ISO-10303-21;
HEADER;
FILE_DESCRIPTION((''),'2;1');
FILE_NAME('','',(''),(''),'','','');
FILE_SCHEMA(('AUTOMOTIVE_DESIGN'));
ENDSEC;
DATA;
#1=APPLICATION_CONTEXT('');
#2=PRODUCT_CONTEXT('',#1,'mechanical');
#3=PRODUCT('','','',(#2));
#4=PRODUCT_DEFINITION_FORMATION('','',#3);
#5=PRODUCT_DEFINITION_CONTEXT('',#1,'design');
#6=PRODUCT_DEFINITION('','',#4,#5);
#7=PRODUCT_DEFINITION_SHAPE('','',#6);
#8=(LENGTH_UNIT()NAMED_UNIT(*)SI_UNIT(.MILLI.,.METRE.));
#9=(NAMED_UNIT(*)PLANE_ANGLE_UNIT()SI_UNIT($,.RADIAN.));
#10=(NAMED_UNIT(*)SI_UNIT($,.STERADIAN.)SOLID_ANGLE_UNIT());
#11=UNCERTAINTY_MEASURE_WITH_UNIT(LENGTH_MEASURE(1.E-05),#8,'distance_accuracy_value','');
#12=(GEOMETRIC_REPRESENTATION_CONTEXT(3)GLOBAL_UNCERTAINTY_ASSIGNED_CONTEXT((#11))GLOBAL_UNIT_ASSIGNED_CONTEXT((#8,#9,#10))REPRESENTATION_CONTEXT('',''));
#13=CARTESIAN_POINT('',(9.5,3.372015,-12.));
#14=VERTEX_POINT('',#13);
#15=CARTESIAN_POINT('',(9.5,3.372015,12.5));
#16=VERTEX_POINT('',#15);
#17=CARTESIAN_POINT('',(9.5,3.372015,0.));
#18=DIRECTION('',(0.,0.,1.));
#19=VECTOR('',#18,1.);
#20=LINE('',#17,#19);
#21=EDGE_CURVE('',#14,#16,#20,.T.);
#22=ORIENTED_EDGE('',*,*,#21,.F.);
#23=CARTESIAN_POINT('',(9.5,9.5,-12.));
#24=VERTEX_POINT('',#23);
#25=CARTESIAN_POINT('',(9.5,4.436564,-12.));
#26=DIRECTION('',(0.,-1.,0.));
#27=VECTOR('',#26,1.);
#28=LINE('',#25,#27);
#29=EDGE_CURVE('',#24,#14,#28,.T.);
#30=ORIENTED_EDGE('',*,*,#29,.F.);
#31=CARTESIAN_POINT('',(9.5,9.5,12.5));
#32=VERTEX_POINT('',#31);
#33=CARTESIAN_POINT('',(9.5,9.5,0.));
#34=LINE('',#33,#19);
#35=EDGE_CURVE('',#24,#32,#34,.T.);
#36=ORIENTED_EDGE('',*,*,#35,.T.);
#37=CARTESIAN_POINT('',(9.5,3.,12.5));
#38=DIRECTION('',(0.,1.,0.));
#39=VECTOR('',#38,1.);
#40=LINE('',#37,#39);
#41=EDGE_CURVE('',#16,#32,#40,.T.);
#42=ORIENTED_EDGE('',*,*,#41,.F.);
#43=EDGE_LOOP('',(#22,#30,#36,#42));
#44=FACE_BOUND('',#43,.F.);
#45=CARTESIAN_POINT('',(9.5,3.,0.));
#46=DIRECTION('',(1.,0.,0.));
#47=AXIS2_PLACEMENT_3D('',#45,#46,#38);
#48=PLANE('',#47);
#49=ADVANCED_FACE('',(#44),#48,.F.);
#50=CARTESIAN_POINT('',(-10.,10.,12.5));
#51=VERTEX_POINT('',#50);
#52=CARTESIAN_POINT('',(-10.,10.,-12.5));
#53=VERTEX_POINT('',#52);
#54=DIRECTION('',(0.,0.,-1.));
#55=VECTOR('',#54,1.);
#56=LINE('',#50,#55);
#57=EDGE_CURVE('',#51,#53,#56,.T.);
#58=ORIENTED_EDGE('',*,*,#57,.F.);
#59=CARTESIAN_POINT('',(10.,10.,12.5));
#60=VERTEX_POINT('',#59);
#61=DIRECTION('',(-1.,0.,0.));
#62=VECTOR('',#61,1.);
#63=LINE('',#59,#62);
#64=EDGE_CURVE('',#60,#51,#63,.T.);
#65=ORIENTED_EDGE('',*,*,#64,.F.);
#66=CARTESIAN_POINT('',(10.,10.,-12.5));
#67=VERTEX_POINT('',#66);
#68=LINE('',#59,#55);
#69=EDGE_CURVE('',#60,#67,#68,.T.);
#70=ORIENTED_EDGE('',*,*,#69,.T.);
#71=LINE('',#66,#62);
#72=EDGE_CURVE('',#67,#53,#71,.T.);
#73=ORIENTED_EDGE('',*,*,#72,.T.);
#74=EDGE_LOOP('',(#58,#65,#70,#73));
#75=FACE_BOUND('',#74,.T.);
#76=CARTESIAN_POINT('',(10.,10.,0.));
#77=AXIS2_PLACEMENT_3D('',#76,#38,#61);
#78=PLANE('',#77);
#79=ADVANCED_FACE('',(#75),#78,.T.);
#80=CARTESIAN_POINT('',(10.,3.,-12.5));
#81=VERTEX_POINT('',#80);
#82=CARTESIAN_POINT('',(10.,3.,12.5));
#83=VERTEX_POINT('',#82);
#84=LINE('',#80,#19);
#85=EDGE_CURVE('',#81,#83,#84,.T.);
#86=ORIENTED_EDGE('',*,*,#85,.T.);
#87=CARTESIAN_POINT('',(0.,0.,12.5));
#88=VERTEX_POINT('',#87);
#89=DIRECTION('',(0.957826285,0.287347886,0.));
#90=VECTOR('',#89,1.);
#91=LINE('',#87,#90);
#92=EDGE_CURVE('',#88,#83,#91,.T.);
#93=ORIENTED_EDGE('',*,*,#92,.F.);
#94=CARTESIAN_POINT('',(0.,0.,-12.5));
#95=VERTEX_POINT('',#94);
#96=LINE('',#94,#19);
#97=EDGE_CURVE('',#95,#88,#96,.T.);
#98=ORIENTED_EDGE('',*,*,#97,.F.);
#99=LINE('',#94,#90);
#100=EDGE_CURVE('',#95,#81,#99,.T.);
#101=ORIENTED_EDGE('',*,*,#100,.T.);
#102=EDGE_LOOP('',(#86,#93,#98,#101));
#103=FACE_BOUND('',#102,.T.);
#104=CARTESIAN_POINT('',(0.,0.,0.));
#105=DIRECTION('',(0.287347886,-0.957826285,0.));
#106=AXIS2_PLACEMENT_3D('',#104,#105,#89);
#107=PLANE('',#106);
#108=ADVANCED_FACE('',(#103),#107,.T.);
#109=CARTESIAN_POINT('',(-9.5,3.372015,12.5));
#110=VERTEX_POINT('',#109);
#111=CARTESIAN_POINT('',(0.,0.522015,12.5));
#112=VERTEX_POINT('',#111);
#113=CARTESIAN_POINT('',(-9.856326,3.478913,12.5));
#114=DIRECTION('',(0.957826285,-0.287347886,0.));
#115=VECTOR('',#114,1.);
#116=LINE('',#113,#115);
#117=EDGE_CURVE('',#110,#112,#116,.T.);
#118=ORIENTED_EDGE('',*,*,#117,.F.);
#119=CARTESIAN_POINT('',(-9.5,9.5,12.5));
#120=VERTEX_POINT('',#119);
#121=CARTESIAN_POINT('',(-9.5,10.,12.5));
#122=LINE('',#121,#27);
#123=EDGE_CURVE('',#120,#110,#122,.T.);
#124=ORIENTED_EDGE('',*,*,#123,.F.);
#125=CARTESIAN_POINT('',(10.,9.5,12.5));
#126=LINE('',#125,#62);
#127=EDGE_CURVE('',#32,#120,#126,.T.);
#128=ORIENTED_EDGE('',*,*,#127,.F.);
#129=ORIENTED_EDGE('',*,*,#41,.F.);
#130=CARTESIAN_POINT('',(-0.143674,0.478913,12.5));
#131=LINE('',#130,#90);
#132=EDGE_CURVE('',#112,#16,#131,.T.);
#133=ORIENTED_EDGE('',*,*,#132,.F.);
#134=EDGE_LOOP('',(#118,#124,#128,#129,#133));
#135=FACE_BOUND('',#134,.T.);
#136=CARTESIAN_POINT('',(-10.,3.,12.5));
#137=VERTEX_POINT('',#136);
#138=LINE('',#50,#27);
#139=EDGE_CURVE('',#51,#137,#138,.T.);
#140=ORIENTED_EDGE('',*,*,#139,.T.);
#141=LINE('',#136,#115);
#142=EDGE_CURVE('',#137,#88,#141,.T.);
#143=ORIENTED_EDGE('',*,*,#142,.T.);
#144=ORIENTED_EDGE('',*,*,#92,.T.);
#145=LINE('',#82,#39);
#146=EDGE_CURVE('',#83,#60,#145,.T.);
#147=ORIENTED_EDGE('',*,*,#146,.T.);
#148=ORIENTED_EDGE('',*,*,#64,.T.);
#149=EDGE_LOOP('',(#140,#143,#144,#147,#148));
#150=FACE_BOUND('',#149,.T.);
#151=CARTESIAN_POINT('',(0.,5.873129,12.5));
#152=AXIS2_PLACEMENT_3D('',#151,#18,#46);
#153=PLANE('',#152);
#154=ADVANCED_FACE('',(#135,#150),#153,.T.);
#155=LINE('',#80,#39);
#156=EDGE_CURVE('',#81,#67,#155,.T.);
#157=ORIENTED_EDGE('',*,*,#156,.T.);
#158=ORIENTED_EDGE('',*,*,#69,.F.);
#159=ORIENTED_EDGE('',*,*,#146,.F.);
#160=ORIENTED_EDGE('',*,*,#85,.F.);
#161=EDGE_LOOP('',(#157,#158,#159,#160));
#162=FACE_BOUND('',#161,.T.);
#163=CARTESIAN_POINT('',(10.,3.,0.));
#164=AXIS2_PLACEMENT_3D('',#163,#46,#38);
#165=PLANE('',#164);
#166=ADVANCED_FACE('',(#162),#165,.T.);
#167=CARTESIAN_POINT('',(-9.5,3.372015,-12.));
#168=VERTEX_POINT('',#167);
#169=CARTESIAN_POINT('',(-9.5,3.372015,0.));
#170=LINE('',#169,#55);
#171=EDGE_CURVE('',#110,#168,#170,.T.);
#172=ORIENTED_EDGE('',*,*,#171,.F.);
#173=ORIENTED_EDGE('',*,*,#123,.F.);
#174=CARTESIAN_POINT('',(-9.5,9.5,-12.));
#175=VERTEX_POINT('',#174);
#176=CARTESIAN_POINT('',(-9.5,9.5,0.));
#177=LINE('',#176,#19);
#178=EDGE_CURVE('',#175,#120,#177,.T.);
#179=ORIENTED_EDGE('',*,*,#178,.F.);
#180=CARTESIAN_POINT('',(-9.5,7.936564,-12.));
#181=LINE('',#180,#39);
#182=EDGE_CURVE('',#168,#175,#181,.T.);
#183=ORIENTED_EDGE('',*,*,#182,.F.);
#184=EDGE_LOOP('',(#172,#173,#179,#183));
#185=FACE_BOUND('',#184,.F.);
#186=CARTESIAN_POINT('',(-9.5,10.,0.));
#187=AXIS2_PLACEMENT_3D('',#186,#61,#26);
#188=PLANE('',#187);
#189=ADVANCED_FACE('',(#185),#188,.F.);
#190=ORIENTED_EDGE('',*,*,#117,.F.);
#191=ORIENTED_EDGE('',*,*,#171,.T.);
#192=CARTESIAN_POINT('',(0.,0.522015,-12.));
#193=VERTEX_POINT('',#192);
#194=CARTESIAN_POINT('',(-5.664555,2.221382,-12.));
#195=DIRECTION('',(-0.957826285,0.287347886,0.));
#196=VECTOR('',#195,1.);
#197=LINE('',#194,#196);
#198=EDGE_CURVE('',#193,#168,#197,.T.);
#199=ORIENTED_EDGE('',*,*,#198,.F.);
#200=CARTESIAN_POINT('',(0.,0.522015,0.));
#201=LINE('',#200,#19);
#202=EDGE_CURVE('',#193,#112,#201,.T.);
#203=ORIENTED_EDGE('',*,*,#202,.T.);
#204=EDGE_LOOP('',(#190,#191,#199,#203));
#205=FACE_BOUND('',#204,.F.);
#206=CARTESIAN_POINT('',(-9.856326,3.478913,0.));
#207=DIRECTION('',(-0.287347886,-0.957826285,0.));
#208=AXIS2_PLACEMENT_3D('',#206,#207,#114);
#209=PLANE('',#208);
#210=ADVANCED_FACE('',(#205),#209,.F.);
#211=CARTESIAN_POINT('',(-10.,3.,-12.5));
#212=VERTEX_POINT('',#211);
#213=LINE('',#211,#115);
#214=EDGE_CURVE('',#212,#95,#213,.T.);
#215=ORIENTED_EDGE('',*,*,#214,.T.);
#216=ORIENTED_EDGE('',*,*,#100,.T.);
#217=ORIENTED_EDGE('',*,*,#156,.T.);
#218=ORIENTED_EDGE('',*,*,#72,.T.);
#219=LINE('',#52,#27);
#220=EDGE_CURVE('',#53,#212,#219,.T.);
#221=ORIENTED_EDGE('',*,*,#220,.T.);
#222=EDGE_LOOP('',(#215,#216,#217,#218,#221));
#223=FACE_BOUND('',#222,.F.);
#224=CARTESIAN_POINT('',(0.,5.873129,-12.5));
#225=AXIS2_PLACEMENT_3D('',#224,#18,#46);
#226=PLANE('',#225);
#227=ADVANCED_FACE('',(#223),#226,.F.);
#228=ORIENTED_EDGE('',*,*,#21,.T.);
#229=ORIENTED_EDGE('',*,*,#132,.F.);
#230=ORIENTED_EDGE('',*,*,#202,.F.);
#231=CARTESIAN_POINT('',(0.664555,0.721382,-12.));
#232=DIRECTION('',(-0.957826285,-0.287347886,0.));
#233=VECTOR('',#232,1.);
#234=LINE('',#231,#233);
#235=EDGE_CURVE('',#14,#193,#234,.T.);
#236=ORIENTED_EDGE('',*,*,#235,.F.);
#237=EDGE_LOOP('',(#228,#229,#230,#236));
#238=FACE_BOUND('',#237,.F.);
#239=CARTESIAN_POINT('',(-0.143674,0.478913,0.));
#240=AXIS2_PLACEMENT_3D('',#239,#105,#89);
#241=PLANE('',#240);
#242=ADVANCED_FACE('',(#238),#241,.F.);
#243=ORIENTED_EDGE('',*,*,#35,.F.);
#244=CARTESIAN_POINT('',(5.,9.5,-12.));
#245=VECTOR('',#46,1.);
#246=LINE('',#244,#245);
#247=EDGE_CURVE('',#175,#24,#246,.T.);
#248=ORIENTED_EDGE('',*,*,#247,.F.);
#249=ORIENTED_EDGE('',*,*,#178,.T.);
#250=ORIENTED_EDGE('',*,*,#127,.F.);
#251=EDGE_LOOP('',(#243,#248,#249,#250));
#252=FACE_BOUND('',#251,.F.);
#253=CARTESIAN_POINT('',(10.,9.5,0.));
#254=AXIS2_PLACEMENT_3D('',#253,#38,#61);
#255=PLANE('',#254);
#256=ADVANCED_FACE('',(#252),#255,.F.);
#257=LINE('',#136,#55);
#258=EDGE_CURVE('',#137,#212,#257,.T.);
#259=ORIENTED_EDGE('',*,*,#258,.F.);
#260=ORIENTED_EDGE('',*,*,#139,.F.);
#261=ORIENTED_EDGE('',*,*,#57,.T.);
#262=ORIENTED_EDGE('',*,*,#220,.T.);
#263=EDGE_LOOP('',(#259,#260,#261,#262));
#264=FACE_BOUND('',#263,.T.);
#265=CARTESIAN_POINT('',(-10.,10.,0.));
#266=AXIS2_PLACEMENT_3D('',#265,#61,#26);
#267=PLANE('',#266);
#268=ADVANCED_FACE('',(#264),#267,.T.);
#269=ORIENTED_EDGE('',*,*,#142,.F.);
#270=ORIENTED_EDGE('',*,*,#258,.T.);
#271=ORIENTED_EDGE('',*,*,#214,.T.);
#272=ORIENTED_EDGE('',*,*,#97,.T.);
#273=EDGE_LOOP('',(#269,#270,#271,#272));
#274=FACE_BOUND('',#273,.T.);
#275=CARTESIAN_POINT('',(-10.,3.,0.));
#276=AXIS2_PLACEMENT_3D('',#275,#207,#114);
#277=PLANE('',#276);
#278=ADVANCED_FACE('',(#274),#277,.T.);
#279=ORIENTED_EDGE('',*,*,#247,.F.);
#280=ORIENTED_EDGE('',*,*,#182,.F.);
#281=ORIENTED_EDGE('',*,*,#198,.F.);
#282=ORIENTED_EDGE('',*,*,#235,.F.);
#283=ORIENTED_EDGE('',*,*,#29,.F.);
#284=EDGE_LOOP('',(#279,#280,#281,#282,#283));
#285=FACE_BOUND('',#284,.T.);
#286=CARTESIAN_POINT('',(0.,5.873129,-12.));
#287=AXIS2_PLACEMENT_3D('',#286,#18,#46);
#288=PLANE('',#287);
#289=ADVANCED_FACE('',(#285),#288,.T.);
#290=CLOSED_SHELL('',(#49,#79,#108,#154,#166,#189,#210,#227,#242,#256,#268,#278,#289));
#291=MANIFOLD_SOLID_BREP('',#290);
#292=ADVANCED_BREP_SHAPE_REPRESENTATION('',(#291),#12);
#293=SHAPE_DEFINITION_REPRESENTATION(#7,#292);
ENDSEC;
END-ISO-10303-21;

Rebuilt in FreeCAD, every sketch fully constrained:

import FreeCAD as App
import Part
import Sketcher
from FreeCAD import Vector
Q = App.Units.Quantity


def faces_at(feature, points):
    """Names of the faces that lie closest to the given points."""
    faces = feature.Shape.Faces
    near = lambda p: min(range(len(faces)), key=lambda i: faces[i].distToShape(Part.Vertex(*p))[0])
    return sorted({f"Face{near(p) + 1}" for p in points})


def add_polygon(sketch, points):
    """Adds a closed chain of lines whose ends are joined by coincident constraints."""
    first, n = sketch.GeometryCount, len(points)
    for a, b in zip(points, points[1:] + points[:1]):
        sketch.addGeometry(Part.LineSegment(App.Vector(*a, 0), App.Vector(*b, 0)), False)
    for i in range(n):
        sketch.addConstraint(Sketcher.Constraint("Coincident", first + i, 2, first + (i + 1) % n, 1))

doc = App.newDocument("Part")
body = doc.addObject("PartDesign::Body", "Body")

# Sketch on XY plane
sketch1 = body.newObject("Sketcher::SketchObject", "Sketch")
sketch1.AttachmentSupport = (doc.getObject("XY_Plane"), [""])
sketch1.MapMode = "FlatFace"
add_polygon(sketch1, [(-10, 3), (0, 0), (10, 3), (10, 10), (-10, 10)])  # lines 0-4
sketch1.addConstraint(Sketcher.Constraint("Vertical", 2))
sketch1.addConstraint(Sketcher.Constraint("Horizontal", 3))
sketch1.addConstraint(Sketcher.Constraint("Vertical", 4))
sketch1.addConstraint(Sketcher.Constraint("Coincident", 0, 2, -1, 1))
sketch1.addConstraint(Sketcher.Constraint("Symmetric", 1, 2, 4, 2, -2))
sketch1.addConstraint(Sketcher.Constraint("DistanceX", 3, 2, 3, 1, Q("20 mm")))
sketch1.addConstraint(Sketcher.Constraint("DistanceY", 2, 1, 2, 2, Q("7 mm")))
sketch1.addConstraint(Sketcher.Constraint("DistanceY", -1, 1, 1, 2, Q("3 mm")))
pad1 = body.newObject("PartDesign::Pad", "Pad")
pad1.Profile = sketch1
pad1.Length = 25
pad1.Midplane = True
doc.recompute()

thickness = body.newObject("PartDesign::Thickness", "Thickness")
thickness.Base = (pad1, faces_at(pad1, [(0, 5, 12.5)]))
thickness.Value = 0.5
thickness.Reversed = True
thickness.Join = "Arc"

doc.recompute()
